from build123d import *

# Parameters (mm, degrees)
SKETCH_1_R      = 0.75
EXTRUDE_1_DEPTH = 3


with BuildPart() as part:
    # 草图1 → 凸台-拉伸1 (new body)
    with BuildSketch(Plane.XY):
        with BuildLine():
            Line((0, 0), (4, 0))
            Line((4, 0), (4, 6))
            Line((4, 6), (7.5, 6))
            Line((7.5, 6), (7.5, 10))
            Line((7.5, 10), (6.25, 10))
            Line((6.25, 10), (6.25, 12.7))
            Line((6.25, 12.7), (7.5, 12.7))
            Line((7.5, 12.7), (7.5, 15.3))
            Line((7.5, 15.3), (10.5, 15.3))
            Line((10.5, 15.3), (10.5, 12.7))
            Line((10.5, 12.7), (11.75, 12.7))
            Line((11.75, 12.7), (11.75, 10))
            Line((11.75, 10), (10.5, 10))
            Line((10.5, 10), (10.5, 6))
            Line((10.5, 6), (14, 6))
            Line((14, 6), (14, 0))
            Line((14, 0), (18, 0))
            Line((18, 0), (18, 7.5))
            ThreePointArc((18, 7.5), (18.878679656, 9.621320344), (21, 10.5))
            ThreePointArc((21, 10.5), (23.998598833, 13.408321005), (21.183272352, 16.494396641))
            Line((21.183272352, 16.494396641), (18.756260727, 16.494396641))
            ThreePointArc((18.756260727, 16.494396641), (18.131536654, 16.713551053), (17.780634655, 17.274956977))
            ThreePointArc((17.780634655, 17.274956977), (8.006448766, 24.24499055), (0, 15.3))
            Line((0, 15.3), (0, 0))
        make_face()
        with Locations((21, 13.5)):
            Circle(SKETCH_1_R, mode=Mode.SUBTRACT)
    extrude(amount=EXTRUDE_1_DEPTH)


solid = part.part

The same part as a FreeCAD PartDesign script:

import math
import FreeCAD as App
import Part
import Sketcher

V = App.Vector
Q = App.Units.Quantity

doc = App.newDocument("Part")
body = doc.addObject("PartDesign::Body", "Body")

# Sketch on XY plane
sketch1 = doc.addObject("Sketcher::SketchObject", "Sketch")
body.addObject(sketch1)
sketch1.AttachmentSupport = (doc.XY_Plane, [""])
sketch1.MapMode = "FlatFace"
sketch1.addGeometry([
    Part.LineSegment(V(0, 0, 0), V(4, 0, 0)),  # 0
    Part.LineSegment(V(4, 0, 0), V(4, 6, 0)),  # 1
    Part.LineSegment(V(4, 6, 0), V(7.5, 6, 0)),  # 2
    Part.LineSegment(V(7.5, 6, 0), V(7.5, 10, 0)),  # 3
    Part.LineSegment(V(7.5, 10, 0), V(6.25, 10, 0)),  # 4
    Part.LineSegment(V(6.25, 10, 0), V(6.25, 12.7, 0)),  # 5
    Part.LineSegment(V(6.25, 12.7, 0), V(7.5, 12.7, 0)),  # 6
    Part.LineSegment(V(7.5, 12.7, 0), V(7.5, 15.3, 0)),  # 7
    Part.LineSegment(V(7.5, 15.3, 0), V(10.5, 15.3, 0)),  # 8
    Part.LineSegment(V(10.5, 15.3, 0), V(10.5, 12.7, 0)),  # 9
    Part.LineSegment(V(10.5, 12.7, 0), V(11.75, 12.7, 0)),  # 10
    Part.LineSegment(V(11.75, 12.7, 0), V(11.75, 10, 0)),  # 11
    Part.LineSegment(V(11.75, 10, 0), V(10.5, 10, 0)),  # 12
    Part.LineSegment(V(10.5, 10, 0), V(10.5, 6, 0)),  # 13
    Part.LineSegment(V(10.5, 6, 0), V(14, 6, 0)),  # 14
    Part.LineSegment(V(14, 6, 0), V(14, 0, 0)),  # 15
    Part.LineSegment(V(14, 0, 0), V(18, 0, 0)),  # 16
    Part.LineSegment(V(18, 0, 0), V(18, 7.5, 0)),  # 17
    Part.ArcOfCircle(Part.Circle(V(21, 7.5, 0), V(0, 0, 1), 3), math.radians(90), math.radians(180)),  # 18
    Part.ArcOfCircle(Part.Circle(V(21, 13.5, 0), V(0, 0, 1), 3), math.radians(-90), math.radians(86.497575)),  # 19
    Part.LineSegment(V(21.183272, 16.494397, 0), V(18.756261, 16.494397, 0)),  # 20
    Part.ArcOfCircle(Part.Circle(V(18.756261, 17.494397, 0), V(0, 0, 1), 1), math.radians(-167.323876), math.radians(-90)),  # 21
    Part.ArcOfCircle(Part.Circle(V(9, 15.3, 0), V(0, 0, 1), 9), math.radians(12.676124), math.radians(180)),  # 22
    Part.LineSegment(V(0, 15.3, 0), V(0, 0, 0)),  # 23
    Part.Circle(V(21, 13.5, 0), V(0, 0, 1), 0.75),  # 24
], False)
sketch1.addConstraint([
    Sketcher.Constraint("Coincident", 0, 2, 1, 1),
    Sketcher.Constraint("Coincident", 1, 2, 2, 1),
    Sketcher.Constraint("Coincident", 2, 2, 3, 1),
    Sketcher.Constraint("Coincident", 3, 2, 4, 1),
    Sketcher.Constraint("Coincident", 4, 2, 5, 1),
    Sketcher.Constraint("Coincident", 5, 2, 6, 1),
    Sketcher.Constraint("Coincident", 6, 2, 7, 1),
    Sketcher.Constraint("Coincident", 7, 2, 8, 1),
    Sketcher.Constraint("Coincident", 8, 2, 9, 1),
    Sketcher.Constraint("Coincident", 9, 2, 10, 1),
    Sketcher.Constraint("Coincident", 10, 2, 11, 1),
    Sketcher.Constraint("Coincident", 11, 2, 12, 1),
    Sketcher.Constraint("Coincident", 12, 2, 13, 1),
    Sketcher.Constraint("Coincident", 13, 2, 14, 1),
    Sketcher.Constraint("Coincident", 14, 2, 15, 1),
    Sketcher.Constraint("Coincident", 15, 2, 16, 1),
    Sketcher.Constraint("Coincident", 16, 2, 17, 1),
    Sketcher.Constraint("Tangent", 17, 2, 18, 2),
    Sketcher.Constraint("Tangent", 18, 1, 19, 1),
    Sketcher.Constraint("Coincident", 19, 2, 20, 1),
    Sketcher.Constraint("Tangent", 20, 2, 21, 2),
    Sketcher.Constraint("Tangent", 21, 1, 22, 1),
    Sketcher.Constraint("Tangent", 22, 2, 23, 1),
    Sketcher.Constraint("Coincident", 23, 2, 0, 1),
    Sketcher.Constraint("Horizontal", 0),
    Sketcher.Constraint("Vertical", 1),
    Sketcher.Constraint("Horizontal", 2),
    Sketcher.Constraint("Vertical", 3),
    Sketcher.Constraint("Horizontal", 4),
    Sketcher.Constraint("Vertical", 5),
    Sketcher.Constraint("Horizontal", 6),
    Sketcher.Constraint("Vertical", 7),
    Sketcher.Constraint("Horizontal", 8),
    Sketcher.Constraint("Vertical", 9),
    Sketcher.Constraint("Horizontal", 10),
    Sketcher.Constraint("Vertical", 11),
    Sketcher.Constraint("Horizontal", 12),
    Sketcher.Constraint("Vertical", 13),
    Sketcher.Constraint("Horizontal", 14),
    Sketcher.Constraint("Vertical", 15),
    Sketcher.Constraint("Horizontal", 16),
    Sketcher.Constraint("Vertical", 17),
    Sketcher.Constraint("Horizontal", 20),
    Sketcher.Constraint("Vertical", 23),
    Sketcher.Constraint("Coincident", 23, 2, -1, 1),
    Sketcher.Constraint("Coincident", 24, 3, 19, 3),
    Sketcher.Constraint("Equal", 18, 19),
    Sketcher.Constraint("PointOnObject", 15, 2, -1),
    Sketcher.Constraint("Horizontal", 22, 3, 7, 2),
    Sketcher.Constraint("Horizontal", 6, 2, 9, 2),
    Sketcher.Constraint("Horizontal", 4, 2, 11, 2),
    Sketcher.Constraint("Horizontal", 2, 2, 13, 2),
    Sketcher.Constraint("Vertical", 18, 3, 19, 3),
    Sketcher.Constraint("Vertical", 3, 2, 6, 2),
    Sketcher.Constraint("Vertical", 9, 2, 12, 2),
    Sketcher.Constraint("Equal", 6, 10),
    Sketcher.Constraint("Equal", 2, 14),
    Sketcher.Constraint("Equal", 0, 16),
    Sketcher.Constraint("Equal", 16, 3),
    Sketcher.Constraint("Radius", 18, Q("3 mm")),
    Sketcher.Constraint("Radius", 21, Q("1 mm")),
    Sketcher.Constraint("Radius", 22, Q("9 mm")),
    Sketcher.Constraint("Diameter", 24, Q("1.5 mm")),
    Sketcher.Constraint("DistanceX", 0, 1, 0, 2, Q("4 mm")),
    Sketcher.Constraint("DistanceX", 8, 1, 8, 2, Q("3 mm")),
    Sketcher.Constraint("DistanceY", 1, 1, 1, 2, Q("6 mm")),
    Sketcher.Constraint("DistanceX", 2, 1, 2, 2, Q("3.5 mm")),
    Sketcher.Constraint("DistanceY", 5, 1, 5, 2, Q("2.7 mm")),
    Sketcher.Constraint("DistanceY", 7, 1, 7, 2, Q("2.6 mm")),
    Sketcher.Constraint("DistanceY", 17, 1, 17, 2, Q("7.5 mm")),
    Sketcher.Constraint("DistanceX", 4, 2, 4, 1, Q("1.25 mm")),
    Sketcher.Constraint("DistanceX", 20, 2, 20, 1, Q("2.427012 mm")),
])
pad1 = doc.addObject("PartDesign::Pad", "Pad")
body.addObject(pad1)
pad1.Profile = sketch1
pad1.Length = 3

doc.recompute()
